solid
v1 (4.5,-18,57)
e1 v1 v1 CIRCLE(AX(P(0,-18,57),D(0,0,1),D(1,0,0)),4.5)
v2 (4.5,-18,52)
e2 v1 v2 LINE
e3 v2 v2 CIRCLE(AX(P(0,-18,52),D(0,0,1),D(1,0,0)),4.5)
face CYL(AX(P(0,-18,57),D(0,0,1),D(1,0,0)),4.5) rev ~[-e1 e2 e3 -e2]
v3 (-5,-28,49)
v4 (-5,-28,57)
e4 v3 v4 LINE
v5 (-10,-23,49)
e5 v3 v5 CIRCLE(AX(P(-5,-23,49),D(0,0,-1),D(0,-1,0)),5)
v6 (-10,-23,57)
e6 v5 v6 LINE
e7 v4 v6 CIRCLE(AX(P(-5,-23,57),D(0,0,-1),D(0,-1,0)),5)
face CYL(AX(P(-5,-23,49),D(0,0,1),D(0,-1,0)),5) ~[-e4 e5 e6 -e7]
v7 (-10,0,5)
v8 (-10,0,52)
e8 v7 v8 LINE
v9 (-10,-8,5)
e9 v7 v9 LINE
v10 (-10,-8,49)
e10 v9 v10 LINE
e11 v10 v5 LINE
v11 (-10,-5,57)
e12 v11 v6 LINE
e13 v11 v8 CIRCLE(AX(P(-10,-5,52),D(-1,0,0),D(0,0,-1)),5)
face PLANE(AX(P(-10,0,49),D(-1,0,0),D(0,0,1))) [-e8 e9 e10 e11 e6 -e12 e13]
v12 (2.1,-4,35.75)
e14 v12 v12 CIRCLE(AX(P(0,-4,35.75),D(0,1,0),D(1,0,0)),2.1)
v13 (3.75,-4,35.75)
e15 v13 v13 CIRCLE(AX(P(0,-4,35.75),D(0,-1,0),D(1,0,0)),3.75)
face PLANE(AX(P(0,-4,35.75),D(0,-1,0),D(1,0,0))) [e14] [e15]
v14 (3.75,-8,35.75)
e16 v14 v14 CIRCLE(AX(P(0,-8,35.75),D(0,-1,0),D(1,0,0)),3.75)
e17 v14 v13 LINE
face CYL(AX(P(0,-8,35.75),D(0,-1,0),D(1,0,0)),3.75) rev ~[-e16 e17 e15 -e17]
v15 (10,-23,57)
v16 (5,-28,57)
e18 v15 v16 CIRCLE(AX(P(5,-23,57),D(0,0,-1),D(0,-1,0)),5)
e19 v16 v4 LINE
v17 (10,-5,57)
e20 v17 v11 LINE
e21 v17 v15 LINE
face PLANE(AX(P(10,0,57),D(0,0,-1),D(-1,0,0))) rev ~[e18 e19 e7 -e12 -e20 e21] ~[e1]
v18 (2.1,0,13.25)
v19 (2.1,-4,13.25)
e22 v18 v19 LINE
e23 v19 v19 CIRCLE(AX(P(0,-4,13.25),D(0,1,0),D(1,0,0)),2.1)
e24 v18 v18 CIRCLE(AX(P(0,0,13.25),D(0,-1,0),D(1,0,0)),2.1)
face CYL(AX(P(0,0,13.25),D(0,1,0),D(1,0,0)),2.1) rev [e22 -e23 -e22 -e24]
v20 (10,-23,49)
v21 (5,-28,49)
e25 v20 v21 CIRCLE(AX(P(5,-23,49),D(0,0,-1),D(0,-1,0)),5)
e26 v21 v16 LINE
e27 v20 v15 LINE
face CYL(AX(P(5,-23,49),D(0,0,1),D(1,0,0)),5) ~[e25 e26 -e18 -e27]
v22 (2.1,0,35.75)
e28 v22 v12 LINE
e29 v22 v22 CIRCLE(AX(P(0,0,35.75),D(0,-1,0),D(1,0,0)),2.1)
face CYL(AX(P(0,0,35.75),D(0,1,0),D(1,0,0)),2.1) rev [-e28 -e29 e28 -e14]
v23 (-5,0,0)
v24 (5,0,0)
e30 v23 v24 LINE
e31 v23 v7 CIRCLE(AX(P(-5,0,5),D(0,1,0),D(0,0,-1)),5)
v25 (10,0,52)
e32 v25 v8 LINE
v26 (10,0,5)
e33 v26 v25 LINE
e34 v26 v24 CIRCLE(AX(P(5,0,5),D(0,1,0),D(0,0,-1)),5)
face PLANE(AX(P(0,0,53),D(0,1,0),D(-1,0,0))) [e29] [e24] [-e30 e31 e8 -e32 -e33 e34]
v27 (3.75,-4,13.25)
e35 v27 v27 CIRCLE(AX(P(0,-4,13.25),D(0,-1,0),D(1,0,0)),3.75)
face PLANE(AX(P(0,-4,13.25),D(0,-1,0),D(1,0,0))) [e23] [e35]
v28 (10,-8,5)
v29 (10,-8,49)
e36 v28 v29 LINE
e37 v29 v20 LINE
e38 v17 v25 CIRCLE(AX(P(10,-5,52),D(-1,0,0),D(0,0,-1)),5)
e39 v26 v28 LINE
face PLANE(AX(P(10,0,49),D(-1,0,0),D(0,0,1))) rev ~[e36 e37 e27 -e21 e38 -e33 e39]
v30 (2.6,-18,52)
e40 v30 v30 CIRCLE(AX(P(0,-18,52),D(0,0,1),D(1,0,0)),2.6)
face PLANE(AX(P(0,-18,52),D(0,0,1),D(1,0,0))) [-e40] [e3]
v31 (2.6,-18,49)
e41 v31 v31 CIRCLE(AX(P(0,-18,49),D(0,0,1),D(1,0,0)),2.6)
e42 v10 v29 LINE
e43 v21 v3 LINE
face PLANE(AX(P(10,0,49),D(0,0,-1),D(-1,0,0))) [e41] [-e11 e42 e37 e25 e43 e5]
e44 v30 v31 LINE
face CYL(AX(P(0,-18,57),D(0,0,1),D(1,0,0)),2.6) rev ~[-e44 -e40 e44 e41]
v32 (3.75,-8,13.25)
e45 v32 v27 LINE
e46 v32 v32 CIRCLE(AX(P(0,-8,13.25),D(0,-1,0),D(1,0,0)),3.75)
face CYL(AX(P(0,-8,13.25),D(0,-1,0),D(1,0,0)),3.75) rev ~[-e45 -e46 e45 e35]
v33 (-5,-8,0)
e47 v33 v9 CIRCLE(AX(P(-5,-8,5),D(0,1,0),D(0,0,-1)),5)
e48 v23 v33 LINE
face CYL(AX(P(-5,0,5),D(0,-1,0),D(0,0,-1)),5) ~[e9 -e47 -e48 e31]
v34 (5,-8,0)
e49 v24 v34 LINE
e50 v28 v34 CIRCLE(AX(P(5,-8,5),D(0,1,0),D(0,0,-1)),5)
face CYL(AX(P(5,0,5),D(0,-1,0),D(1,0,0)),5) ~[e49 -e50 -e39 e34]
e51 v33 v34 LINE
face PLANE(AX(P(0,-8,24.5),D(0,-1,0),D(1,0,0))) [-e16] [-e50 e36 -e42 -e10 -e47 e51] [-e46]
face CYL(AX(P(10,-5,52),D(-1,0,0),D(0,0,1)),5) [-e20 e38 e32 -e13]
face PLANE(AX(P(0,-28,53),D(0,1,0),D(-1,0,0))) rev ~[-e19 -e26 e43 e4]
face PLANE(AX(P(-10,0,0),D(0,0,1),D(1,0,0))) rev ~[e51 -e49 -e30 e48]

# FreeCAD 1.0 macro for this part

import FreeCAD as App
import Part
import Sketcher
from FreeCAD import Vector


def edges_at(feature, points):
    """Names of the edges that pass closest to the given points."""
    edges = feature.Shape.Edges
    near = lambda p: min(range(len(edges)), key=lambda i: edges[i].distToShape(Part.Vertex(*p))[0])
    return sorted({f"Edge{near(p) + 1}" for p in points})


def add_polygon(sketch, points):
    """Adds a closed chain of lines whose ends are joined by coincident constraints."""
    first, n = sketch.GeometryCount, len(points)
    for a, b in zip(points, points[1:] + points[:1]):
        sketch.addGeometry(Part.LineSegment(App.Vector(*a, 0), App.Vector(*b, 0)), False)
    for i in range(n):
        sketch.addConstraint(Sketcher.Constraint("Coincident", first + i, 2, first + (i + 1) % n, 1))

doc = App.newDocument("Part")
params = doc.addObject("Spreadsheet::Sheet", "Params")
for row, (alias, value) in enumerate([
    ("sketch1_diameter", "4.2 mm"),
    ("sketch1_width", "20 mm"),
    ("sketch1_height", "49 mm"),
    ("pad1_length", "8 mm"),
    ("sketch2_diameter", "7.5 mm"),
    ("pocket1_length", "4 mm"),
    ("sketch3_width", "20 mm"),
    ("sketch3_height", "8 mm"),
    ("pad2_length", "28 mm"),
    ("sketch4_diameter", "5.2 mm"),
    ("sketch5_diameter", "9 mm"),
    ("pocket3_length", "5 mm"),
    ("fillet_radius", "5 mm"),
], start=1):
    params.set(f"A{row}", alias)
    params.set(f"B{row}", "=" + value)
    params.setAlias(f"B{row}", alias)

body = doc.addObject("PartDesign::Body", "Body")

# Sketch on XZ plane
sketch1 = doc.addObject("Sketcher::SketchObject", "Sketch")
body.addObject(sketch1)
sketch1.AttachmentSupport = (doc.XZ_Plane, [""])
sketch1.MapMode = "FlatFace"
add_polygon(sketch1, [(-10, 49), (-10, 0), (10, 0), (10, 49)])  # lines 0-3
sketch1.addGeometry(Part.Circle(Vector(0, 13.2, 0), Vector(0, 0, 1), 2.1), False)  # 4
sketch1.addGeometry(Part.Circle(Vector(0, 35.8, 0), Vector(0, 0, 1), 2.1), False)  # 5
sketch1.addConstraint(Sketcher.Constraint("Vertical", 0))
sketch1.addConstraint(Sketcher.Constraint("Horizontal", 1))
sketch1.addConstraint(Sketcher.Constraint("Vertical", 2))
sketch1.addConstraint(Sketcher.Constraint("Horizontal", 3))
sketch1.addConstraint(Sketcher.Constraint("Equal", 4, 5))
sketch1.addConstraint(Sketcher.Constraint("Symmetric", 0, 2, 1, 2, -1, 1))
sketch1.addConstraint(Sketcher.Constraint("PointOnObject", 4, 3, -2))
sketch1.addConstraint(Sketcher.Constraint("PointOnObject", 5, 3, -2))
sketch1.addConstraint(Sketcher.Constraint("Diameter", 4, 4.2))
sketch1.addConstraint(Sketcher.Constraint("DistanceX", 1, 1, 1, 2, 20.0))
sketch1.addConstraint(Sketcher.Constraint("DistanceY", 0, 2, 0, 1, 49.0))
sketch1.addConstraint(Sketcher.Constraint("DistanceY", 4, 3, 5, 3, 22.5))
sketch1.addConstraint(Sketcher.Constraint("DistanceY", -1, 1, 4, 3, 13.25))
sketch1.setExpression("Constraints[12]", "Params.sketch1_diameter")
sketch1.setExpression("Constraints[13]", "Params.sketch1_width")
sketch1.setExpression("Constraints[14]", "Params.sketch1_height")
pad1 = doc.addObject("PartDesign::Pad", "Pad")
body.addObject(pad1)
pad1.Profile = sketch1
pad1.setExpression("Length", "Params.pad1_length")

# Sketch on XZ plane
sketch2 = doc.addObject("Sketcher::SketchObject", "Sketch001")
body.addObject(sketch2)
sketch2.AttachmentSupport = (doc.XZ_Plane, [""])
sketch2.MapMode = "FlatFace"
sketch2.AttachmentOffset = App.Placement(Vector(0, 0, 8), App.Rotation())
sketch2.addGeometry(Part.Circle(Vector(0, 35.8, 0), Vector(0, 0, 1), 3.8), False)
sketch2.addGeometry(Part.Circle(Vector(0, 13.2, 0), Vector(0, 0, 1), 3.8), False)
sketch2.addConstraint(Sketcher.Constraint("Equal", 0, 1))
sketch2.addConstraint(Sketcher.Constraint("PointOnObject", 0, 3, -2))
sketch2.addConstraint(Sketcher.Constraint("PointOnObject", 1, 3, -2))
sketch2.addConstraint(Sketcher.Constraint("Diameter", 0, 7.5))
sketch2.addConstraint(Sketcher.Constraint("DistanceY", 1, 3, 0, 3, 22.5))
sketch2.addConstraint(Sketcher.Constraint("DistanceY", -1, 1, 0, 3, 35.75))
sketch2.setExpression("Constraints[3]", "Params.sketch2_diameter")
pocket1 = doc.addObject("PartDesign::Pocket", "Pocket")
body.addObject(pocket1)
pocket1.Profile = sketch2
pocket1.setExpression("Length", "Params.pocket1_length")

# Sketch on XZ plane
sketch3 = doc.addObject("Sketcher::SketchObject", "Sketch002")
body.addObject(sketch3)
sketch3.AttachmentSupport = (doc.XZ_Plane, [""])
sketch3.MapMode = "FlatFace"
add_polygon(sketch3, [(10, 57), (10, 49), (-10, 49), (-10, 57)])  # lines 0-3
sketch3.addConstraint(Sketcher.Constraint("Vertical", 0))
sketch3.addConstraint(Sketcher.Constraint("Horizontal", 1))
sketch3.addConstraint(Sketcher.Constraint("Vertical", 2))
sketch3.addConstraint(Sketcher.Constraint("Horizontal", 3))
sketch3.addConstraint(Sketcher.Constraint("DistanceX", 1, 2, 1, 1, 20.0))
sketch3.addConstraint(Sketcher.Constraint("DistanceY", 0, 2, 0, 1, 8.0))
sketch3.addConstraint(Sketcher.Constraint("DistanceX", -1, 1, 0, 2, 10.0))
sketch3.addConstraint(Sketcher.Constraint("DistanceY", -1, 1, 0, 2, 49.0))
sketch3.setExpression("Constraints[8]", "Params.sketch3_width")
sketch3.setExpression("Constraints[9]", "Params.sketch3_height")
pad2 = doc.addObject("PartDesign::Pad", "Pad001")
body.addObject(pad2)
pad2.Profile = sketch3
pad2.setExpression("Length", "Params.pad2_length")

# Sketch on XY plane
sketch4 = doc.addObject("Sketcher::SketchObject", "Sketch003")
body.addObject(sketch4)
sketch4.AttachmentSupport = (doc.XY_Plane, [""])
sketch4.MapMode = "FlatFace"
sketch4.AttachmentOffset = App.Placement(Vector(0, 0, 57), App.Rotation())
sketch4.addGeometry(Part.Circle(Vector(0, -18, 0), Vector(0, 0, 1), 2.6), False)
sketch4.addConstraint(Sketcher.Constraint("PointOnObject", 0, 3, -2))
sketch4.addConstraint(Sketcher.Constraint("Diameter", 0, 5.2))
sketch4.addConstraint(Sketcher.Constraint("DistanceY", 0, 3, -1, 1, 18.0))
sketch4.setExpression("Constraints[1]", "Params.sketch4_diameter")
pocket2 = doc.addObject("PartDesign::Pocket", "Pocket001")
body.addObject(pocket2)
pocket2.Profile = sketch4
pocket2.Type = "ThroughAll"

# Sketch on XY plane
sketch5 = doc.addObject("Sketcher::SketchObject", "Sketch004")
body.addObject(sketch5)
sketch5.AttachmentSupport = (doc.XY_Plane, [""])
sketch5.MapMode = "FlatFace"
sketch5.AttachmentOffset = App.Placement(Vector(0, 0, 57), App.Rotation())
sketch5.addGeometry(Part.Circle(Vector(0, -18, 0), Vector(0, 0, 1), 4.5), False)
sketch5.addConstraint(Sketcher.Constraint("PointOnObject", 0, 3, -2))
sketch5.addConstraint(Sketcher.Constraint("Diameter", 0, 9.0))
sketch5.addConstraint(Sketcher.Constraint("DistanceY", 0, 3, -1, 1, 18.0))
sketch5.setExpression("Constraints[1]", "Params.sketch5_diameter")
pocket3 = doc.addObject("PartDesign::Pocket", "Pocket002")
body.addObject(pocket3)
pocket3.Profile = sketch5
pocket3.setExpression("Length", "Params.pocket3_length")
doc.recompute()

fillet = doc.addObject("PartDesign::Fillet", "Fillet")
body.addObject(fillet)
fillet.Base = (pocket3, edges_at(pocket3, [
    (10, -28, 53),
    (-10, -28, 53),
    (0, 0, 57),
    (10, -4, 0),
    (-10, -4, 0),
]))
fillet.setExpression("Radius", "Params.fillet_radius")

doc.recompute()
